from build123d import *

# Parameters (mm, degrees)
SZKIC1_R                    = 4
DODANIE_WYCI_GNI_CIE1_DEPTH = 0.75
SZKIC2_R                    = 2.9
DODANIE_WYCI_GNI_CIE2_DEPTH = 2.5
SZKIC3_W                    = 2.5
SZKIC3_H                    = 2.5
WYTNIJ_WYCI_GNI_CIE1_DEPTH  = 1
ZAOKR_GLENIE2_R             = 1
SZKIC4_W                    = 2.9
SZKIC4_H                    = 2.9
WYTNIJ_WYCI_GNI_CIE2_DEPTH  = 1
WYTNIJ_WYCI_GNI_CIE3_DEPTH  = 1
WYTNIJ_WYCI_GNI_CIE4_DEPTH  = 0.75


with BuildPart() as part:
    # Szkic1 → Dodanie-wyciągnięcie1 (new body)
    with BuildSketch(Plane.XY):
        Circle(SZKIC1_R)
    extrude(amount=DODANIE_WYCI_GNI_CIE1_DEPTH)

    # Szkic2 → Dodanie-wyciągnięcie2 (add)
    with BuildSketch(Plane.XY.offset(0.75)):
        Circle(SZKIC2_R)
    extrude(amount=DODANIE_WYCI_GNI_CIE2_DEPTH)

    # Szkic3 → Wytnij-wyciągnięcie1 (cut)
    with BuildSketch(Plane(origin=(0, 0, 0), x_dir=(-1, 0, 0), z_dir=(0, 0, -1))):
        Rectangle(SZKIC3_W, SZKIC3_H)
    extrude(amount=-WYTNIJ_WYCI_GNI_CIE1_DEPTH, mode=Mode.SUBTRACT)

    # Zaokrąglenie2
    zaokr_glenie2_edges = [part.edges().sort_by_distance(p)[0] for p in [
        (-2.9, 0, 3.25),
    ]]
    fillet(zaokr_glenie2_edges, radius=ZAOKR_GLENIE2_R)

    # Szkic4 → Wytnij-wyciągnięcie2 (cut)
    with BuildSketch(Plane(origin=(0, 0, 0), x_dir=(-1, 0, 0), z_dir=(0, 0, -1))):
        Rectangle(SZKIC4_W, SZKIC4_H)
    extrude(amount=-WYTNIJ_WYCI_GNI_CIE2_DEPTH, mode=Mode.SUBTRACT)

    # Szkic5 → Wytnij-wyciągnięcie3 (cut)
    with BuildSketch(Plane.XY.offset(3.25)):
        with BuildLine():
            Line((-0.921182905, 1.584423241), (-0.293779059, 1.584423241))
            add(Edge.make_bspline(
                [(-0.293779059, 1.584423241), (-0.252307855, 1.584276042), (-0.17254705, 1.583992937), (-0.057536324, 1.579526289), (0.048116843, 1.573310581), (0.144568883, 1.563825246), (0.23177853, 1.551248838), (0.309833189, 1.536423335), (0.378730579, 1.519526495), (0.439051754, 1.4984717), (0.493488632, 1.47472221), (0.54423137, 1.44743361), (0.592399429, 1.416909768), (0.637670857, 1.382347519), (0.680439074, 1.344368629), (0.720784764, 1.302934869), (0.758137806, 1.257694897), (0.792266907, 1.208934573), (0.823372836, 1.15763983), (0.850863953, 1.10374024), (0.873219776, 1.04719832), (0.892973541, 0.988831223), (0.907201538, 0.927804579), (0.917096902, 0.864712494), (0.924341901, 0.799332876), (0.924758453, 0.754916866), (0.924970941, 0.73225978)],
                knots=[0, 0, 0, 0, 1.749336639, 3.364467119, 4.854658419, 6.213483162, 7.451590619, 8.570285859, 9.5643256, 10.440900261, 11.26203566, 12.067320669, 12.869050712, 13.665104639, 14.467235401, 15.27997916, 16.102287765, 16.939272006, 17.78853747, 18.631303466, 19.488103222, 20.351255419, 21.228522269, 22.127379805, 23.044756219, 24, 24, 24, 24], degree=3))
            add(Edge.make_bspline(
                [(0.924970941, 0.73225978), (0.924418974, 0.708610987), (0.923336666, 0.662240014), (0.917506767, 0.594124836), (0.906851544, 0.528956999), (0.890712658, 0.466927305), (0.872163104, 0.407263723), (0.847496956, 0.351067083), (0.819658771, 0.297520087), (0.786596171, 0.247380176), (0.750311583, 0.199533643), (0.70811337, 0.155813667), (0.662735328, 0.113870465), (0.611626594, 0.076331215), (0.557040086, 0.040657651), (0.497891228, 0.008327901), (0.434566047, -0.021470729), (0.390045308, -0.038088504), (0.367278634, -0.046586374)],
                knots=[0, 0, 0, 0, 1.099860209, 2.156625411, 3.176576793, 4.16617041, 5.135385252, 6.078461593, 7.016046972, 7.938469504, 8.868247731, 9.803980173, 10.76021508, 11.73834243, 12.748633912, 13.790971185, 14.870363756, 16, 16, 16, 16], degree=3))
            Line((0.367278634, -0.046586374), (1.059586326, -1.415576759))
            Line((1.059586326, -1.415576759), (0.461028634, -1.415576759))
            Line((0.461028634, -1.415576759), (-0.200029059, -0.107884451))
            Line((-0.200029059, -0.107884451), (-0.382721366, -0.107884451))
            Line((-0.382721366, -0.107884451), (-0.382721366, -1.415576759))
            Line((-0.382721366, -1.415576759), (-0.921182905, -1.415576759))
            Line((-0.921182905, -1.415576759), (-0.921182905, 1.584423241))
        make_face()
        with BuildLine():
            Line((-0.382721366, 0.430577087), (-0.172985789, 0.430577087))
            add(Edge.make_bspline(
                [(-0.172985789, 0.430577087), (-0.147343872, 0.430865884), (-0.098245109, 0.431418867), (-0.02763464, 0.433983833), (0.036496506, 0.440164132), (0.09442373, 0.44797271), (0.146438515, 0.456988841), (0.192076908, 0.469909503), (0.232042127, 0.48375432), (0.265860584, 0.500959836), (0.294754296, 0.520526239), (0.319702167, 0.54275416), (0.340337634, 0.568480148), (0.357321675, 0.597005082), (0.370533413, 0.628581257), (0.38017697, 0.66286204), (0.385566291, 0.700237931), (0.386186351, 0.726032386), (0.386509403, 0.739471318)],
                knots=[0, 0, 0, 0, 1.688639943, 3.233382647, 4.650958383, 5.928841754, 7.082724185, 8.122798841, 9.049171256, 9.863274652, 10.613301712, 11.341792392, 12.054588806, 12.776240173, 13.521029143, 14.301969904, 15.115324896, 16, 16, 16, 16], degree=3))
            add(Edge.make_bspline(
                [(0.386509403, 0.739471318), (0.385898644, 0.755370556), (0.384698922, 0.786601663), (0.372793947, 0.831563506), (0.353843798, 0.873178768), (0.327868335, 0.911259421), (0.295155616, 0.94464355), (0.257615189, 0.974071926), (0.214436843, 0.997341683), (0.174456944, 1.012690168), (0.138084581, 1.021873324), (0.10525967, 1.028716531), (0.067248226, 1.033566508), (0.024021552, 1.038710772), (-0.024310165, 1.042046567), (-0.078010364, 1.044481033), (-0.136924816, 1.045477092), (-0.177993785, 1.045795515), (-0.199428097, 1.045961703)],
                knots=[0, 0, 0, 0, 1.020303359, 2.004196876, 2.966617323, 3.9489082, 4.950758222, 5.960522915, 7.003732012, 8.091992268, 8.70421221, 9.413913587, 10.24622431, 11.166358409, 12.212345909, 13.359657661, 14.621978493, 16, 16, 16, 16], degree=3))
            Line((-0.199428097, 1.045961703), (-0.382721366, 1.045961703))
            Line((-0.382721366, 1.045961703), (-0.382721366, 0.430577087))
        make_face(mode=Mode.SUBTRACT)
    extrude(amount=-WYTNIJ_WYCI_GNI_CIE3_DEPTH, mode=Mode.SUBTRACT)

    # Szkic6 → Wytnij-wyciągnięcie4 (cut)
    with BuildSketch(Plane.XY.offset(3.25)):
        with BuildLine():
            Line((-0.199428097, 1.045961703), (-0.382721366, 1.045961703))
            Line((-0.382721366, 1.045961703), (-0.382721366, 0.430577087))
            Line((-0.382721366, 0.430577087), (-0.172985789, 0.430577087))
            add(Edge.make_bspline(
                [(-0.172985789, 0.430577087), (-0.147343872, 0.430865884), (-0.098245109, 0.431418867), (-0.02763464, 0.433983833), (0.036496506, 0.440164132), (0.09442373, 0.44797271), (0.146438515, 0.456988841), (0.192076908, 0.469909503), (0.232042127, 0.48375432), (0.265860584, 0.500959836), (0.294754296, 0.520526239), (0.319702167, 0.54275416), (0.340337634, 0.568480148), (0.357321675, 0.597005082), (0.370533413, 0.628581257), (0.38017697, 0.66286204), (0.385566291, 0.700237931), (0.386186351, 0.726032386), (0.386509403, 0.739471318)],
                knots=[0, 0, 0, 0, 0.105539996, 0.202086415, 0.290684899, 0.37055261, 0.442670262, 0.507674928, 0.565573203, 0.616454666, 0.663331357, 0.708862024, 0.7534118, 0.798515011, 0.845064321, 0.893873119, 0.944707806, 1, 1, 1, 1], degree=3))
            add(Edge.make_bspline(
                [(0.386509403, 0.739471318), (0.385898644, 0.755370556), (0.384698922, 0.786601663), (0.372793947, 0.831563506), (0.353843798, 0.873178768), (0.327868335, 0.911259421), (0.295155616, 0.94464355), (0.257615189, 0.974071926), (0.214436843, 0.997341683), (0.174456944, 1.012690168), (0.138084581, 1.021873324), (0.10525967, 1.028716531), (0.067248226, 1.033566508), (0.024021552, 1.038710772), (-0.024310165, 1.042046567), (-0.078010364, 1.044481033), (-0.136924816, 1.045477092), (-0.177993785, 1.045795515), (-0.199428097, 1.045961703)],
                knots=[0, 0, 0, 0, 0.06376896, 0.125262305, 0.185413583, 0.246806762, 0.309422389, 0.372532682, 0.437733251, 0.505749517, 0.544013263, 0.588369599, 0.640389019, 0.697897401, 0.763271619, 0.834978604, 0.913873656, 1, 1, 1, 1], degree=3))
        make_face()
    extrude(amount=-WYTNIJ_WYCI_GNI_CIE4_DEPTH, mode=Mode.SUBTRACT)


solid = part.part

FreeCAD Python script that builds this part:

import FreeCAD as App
import Part
import Sketcher
Q = App.Units.Quantity


def edges_at(feature, points):
    """Names of the edges that pass closest to the given points."""
    edges = feature.Shape.Edges
    near = lambda p: min(range(len(edges)), key=lambda i: edges[i].distToShape(Part.Vertex(*p))[0])
    return sorted({f"Edge{near(p) + 1}" for p in points})


def add_polygon(sketch, points):
    """Adds a closed chain of lines whose ends are joined by coincident constraints."""
    first, n = sketch.GeometryCount, len(points)
    for a, b in zip(points, points[1:] + points[:1]):
        sketch.addGeometry(Part.LineSegment(App.Vector(*a, 0), App.Vector(*b, 0)), False)
    for i in range(n):
        sketch.addConstraint(Sketcher.Constraint("Coincident", first + i, 2, first + (i + 1) % n, 1))

doc = App.newDocument("Part")
body = doc.addObject("PartDesign::Body", "Body")

sketch1 = body.newObject("Sketcher::SketchObject", "Sketch")
sketch1.AttachmentSupport = (doc.getObject("XY_Plane"), [""])
sketch1.MapMode = "FlatFace"
sketch1.addGeometry(Part.Circle(App.Vector(0, 0, 0), App.Vector(0, 0, 1), 4), False)
sketch1.addConstraint([
    Sketcher.Constraint("Coincident", 0, 3, -1, 1),
    Sketcher.Constraint("Diameter", 0, Q("8 mm")),
])
pad1 = body.newObject("PartDesign::Pad", "Pad")
pad1.Profile = sketch1
pad1.Length = 0.75

sketch2 = body.newObject("Sketcher::SketchObject", "Sketch001")
sketch2.AttachmentSupport = (doc.getObject("XY_Plane"), [""])
sketch2.MapMode = "FlatFace"
sketch2.AttachmentOffset = App.Placement(App.Vector(0, 0, 0.75), App.Rotation())
sketch2.addGeometry(Part.Circle(App.Vector(0, 0, 0), App.Vector(0, 0, 1), 2.9), False)
sketch2.addConstraint([
    Sketcher.Constraint("Coincident", 0, 3, -1, 1),
    Sketcher.Constraint("Diameter", 0, Q("5.8 mm")),
])
pad2 = body.newObject("PartDesign::Pad", "Pad001")
pad2.Profile = sketch2
pad2.Length = 2.5

sketch3 = body.newObject("Sketcher::SketchObject", "Sketch002")
sketch3.AttachmentSupport = (doc.getObject("XY_Plane"), [""])
sketch3.MapMode = "FlatFace"
add_polygon(sketch3, [(1.2, 1.2), (1.2, -1.2), (-1.2, -1.2), (-1.2, 1.2)])
sketch3.addConstraint([
    Sketcher.Constraint("Vertical", 0),
    Sketcher.Constraint("Horizontal", 1),
    Sketcher.Constraint("Vertical", 2),
    Sketcher.Constraint("Horizontal", 3),
    Sketcher.Constraint("Symmetric", 0, 2, 2, 2, -1, 1),
    Sketcher.Constraint("Equal", 3, 0),
    Sketcher.Constraint("DistanceX", 1, 2, 1, 1, Q("2.5 mm")),
])
pocket1 = body.newObject("PartDesign::Pocket", "Pocket")
pocket1.Profile = sketch3
pocket1.Length = 1
pocket1.Reversed = True
doc.recompute()

fillet = body.newObject("PartDesign::Fillet", "Fillet")
fillet.Base = (pocket1, edges_at(pocket1, [(-2.9, 0, 3.25)]))
fillet.Radius = 1

sketch4 = body.newObject("Sketcher::SketchObject", "Sketch003")
sketch4.AttachmentSupport = (doc.getObject("XY_Plane"), [""])
sketch4.MapMode = "FlatFace"
add_polygon(sketch4, [(1.4, 1.4), (1.4, -1.4), (-1.4, -1.4), (-1.4, 1.4)])
sketch4.addConstraint([
    Sketcher.Constraint("Vertical", 0),
    Sketcher.Constraint("Horizontal", 1),
    Sketcher.Constraint("Vertical", 2),
    Sketcher.Constraint("Horizontal", 3),
    Sketcher.Constraint("Symmetric", 0, 2, 2, 2, -1, 1),
    Sketcher.Constraint("Equal", 3, 0),
    Sketcher.Constraint("DistanceX", 1, 2, 1, 1, Q("2.9 mm")),
])
pocket2 = body.newObject("PartDesign::Pocket", "Pocket001")
pocket2.Profile = sketch4
pocket2.Length = 1
pocket2.Reversed = True

sketch5 = body.newObject("Sketcher::SketchObject", "Sketch004")
sketch5.AttachmentSupport = (doc.getObject("XY_Plane"), [""])
sketch5.MapMode = "FlatFace"
sketch5.AttachmentOffset = App.Placement(App.Vector(0, 0, 3.25), App.Rotation())
sketch5.addGeometry([
    Part.LineSegment(App.Vector(-0.293779, 1.584423, 0), App.Vector(-0.921183, 1.584423, 0)),
    Part.LineSegment(App.Vector(-0.921183, 1.584423, 0), App.Vector(-0.921183, -1.415577, 0)),
    Part.LineSegment(App.Vector(-0.921183, -1.415577, 0), App.Vector(-0.382721, -1.415577, 0)),
    Part.LineSegment(App.Vector(-0.382721, -1.415577, 0), App.Vector(-0.382721, -0.107884, 0)),
    Part.LineSegment(App.Vector(-0.382721, -0.107884, 0), App.Vector(-0.200029, -0.107884, 0)),
    Part.LineSegment(App.Vector(-0.200029, -0.107884, 0), App.Vector(0.461029, -1.415577, 0)),
    Part.LineSegment(App.Vector(0.461029, -1.415577, 0), App.Vector(1.059586, -1.415577, 0)),
    Part.LineSegment(App.Vector(1.059586, -1.415577, 0), App.Vector(0.367279, -0.046586, 0)),
    Part.BSplineCurve([App.Vector(0.924971, 0.73226, 0), App.Vector(0.924419, 0.708611, 0), App.Vector(0.923337, 0.66224, 0), App.Vector(0.917507, 0.594125, 0), App.Vector(0.906852, 0.528957, 0), App.Vector(0.890713, 0.466927, 0), App.Vector(0.872163, 0.407264, 0), App.Vector(0.847497, 0.351067, 0), App.Vector(0.819659, 0.29752, 0), App.Vector(0.786596, 0.24738, 0), App.Vector(0.750312, 0.199534, 0), App.Vector(0.708113, 0.155814, 0), App.Vector(0.662735, 0.11387, 0), App.Vector(0.611627, 0.076331, 0), App.Vector(0.55704, 0.040658, 0), App.Vector(0.497891, 0.008328, 0), App.Vector(0.434566, -0.021471, 0), App.Vector(0.390045, -0.038089, 0), App.Vector(0.367279, -0.046586, 0)], [4, 1, 1, 1, 1, 1, 1, 1, 1, 1, 1, 1, 1, 1, 1, 1, 4], [0, 1.099860209, 2.156625411, 3.176576793, 4.16617041, 5.135385252, 6.078461593, 7.016046972, 7.938469504, 8.868247731, 9.803980173, 10.76021508, 11.73834243, 12.748633912, 13.790971185, 14.870363756, 16], False, 3, [1, 1, 1, 1, 1, 1, 1, 1, 1, 1, 1, 1, 1, 1, 1, 1, 1, 1, 1], False),
    Part.BSplineCurve([App.Vector(-0.293779, 1.584423, 0), App.Vector(-0.252308, 1.584276, 0), App.Vector(-0.172547, 1.583993, 0), App.Vector(-0.057536, 1.579526, 0), App.Vector(0.048117, 1.573311, 0), App.Vector(0.144569, 1.563825, 0), App.Vector(0.231779, 1.551249, 0), App.Vector(0.309833, 1.536423, 0), App.Vector(0.378731, 1.519526, 0), App.Vector(0.439052, 1.498472, 0), App.Vector(0.493489, 1.474722, 0), App.Vector(0.544231, 1.447434, 0), App.Vector(0.592399, 1.41691, 0), App.Vector(0.637671, 1.382348, 0), App.Vector(0.680439, 1.344369, 0), App.Vector(0.720785, 1.302935, 0), App.Vector(0.758138, 1.257695, 0), App.Vector(0.792267, 1.208935, 0), App.Vector(0.823373, 1.15764, 0), App.Vector(0.850864, 1.10374, 0), App.Vector(0.87322, 1.047198, 0), App.Vector(0.892974, 0.988831, 0), App.Vector(0.907202, 0.927805, 0), App.Vector(0.917097, 0.864712, 0), App.Vector(0.924342, 0.799333, 0), App.Vector(0.924758, 0.754917, 0), App.Vector(0.924971, 0.73226, 0)], [4, 1, 1, 1, 1, 1, 1, 1, 1, 1, 1, 1, 1, 1, 1, 1, 1, 1, 1, 1, 1, 1, 1, 1, 4], [0, 1.749336639, 3.364467119, 4.854658419, 6.213483162, 7.451590619, 8.570285859, 9.5643256, 10.440900261, 11.26203566, 12.067320669, 12.869050712, 13.665104639, 14.467235401, 15.27997916, 16.102287765, 16.939272006, 17.78853747, 18.631303466, 19.488103222, 20.351255419, 21.228522269, 22.127379805, 23.044756219, 24], False, 3, [1, 1, 1, 1, 1, 1, 1, 1, 1, 1, 1, 1, 1, 1, 1, 1, 1, 1, 1, 1, 1, 1, 1, 1, 1, 1, 1], False),
    Part.LineSegment(App.Vector(-0.382721, 0.430577, 0), App.Vector(-0.382721, 1.045962, 0)),
    Part.LineSegment(App.Vector(-0.382721, 1.045962, 0), App.Vector(-0.199428, 1.045962, 0)),
    Part.BSplineCurve([App.Vector(0.386509, 0.739471, 0), App.Vector(0.385899, 0.755371, 0), App.Vector(0.384699, 0.786602, 0), App.Vector(0.372794, 0.831564, 0), App.Vector(0.353844, 0.873179, 0), App.Vector(0.327868, 0.911259, 0), App.Vector(0.295156, 0.944644, 0), App.Vector(0.257615, 0.974072, 0), App.Vector(0.214437, 0.997342, 0), App.Vector(0.174457, 1.01269, 0), App.Vector(0.138085, 1.021873, 0), App.Vector(0.10526, 1.028717, 0), App.Vector(0.067248, 1.033567, 0), App.Vector(0.024022, 1.038711, 0), App.Vector(-0.02431, 1.042047, 0), App.Vector(-0.07801, 1.044481, 0), App.Vector(-0.136925, 1.045477, 0), App.Vector(-0.177994, 1.045796, 0), App.Vector(-0.199428, 1.045962, 0)], [4, 1, 1, 1, 1, 1, 1, 1, 1, 1, 1, 1, 1, 1, 1, 1, 4], [0, 1.020303359, 2.004196876, 2.966617323, 3.9489082, 4.950758222, 5.960522915, 7.003732012, 8.091992268, 8.70421221, 9.413913587, 10.24622431, 11.166358409, 12.212345909, 13.359657661, 14.621978493, 16], False, 3, [1, 1, 1, 1, 1, 1, 1, 1, 1, 1, 1, 1, 1, 1, 1, 1, 1, 1, 1], False),
    Part.BSplineCurve([App.Vector(-0.172986, 0.430577, 0), App.Vector(-0.147344, 0.430866, 0), App.Vector(-0.098245, 0.431419, 0), App.Vector(-0.027635, 0.433984, 0), App.Vector(0.036497, 0.440164, 0), App.Vector(0.094424, 0.447973, 0), App.Vector(0.146439, 0.456989, 0), App.Vector(0.192077, 0.46991, 0), App.Vector(0.232042, 0.483754, 0), App.Vector(0.265861, 0.50096, 0), App.Vector(0.294754, 0.520526, 0), App.Vector(0.319702, 0.542754, 0), App.Vector(0.340338, 0.56848, 0), App.Vector(0.357322, 0.597005, 0), App.Vector(0.370533, 0.628581, 0), App.Vector(0.380177, 0.662862, 0), App.Vector(0.385566, 0.700238, 0), App.Vector(0.386186, 0.726032, 0), App.Vector(0.386509, 0.739471, 0)], [4, 1, 1, 1, 1, 1, 1, 1, 1, 1, 1, 1, 1, 1, 1, 1, 4], [0, 1.688639943, 3.233382647, 4.650958383, 5.928841754, 7.082724185, 8.122798841, 9.049171256, 9.863274652, 10.613301712, 11.341792392, 12.054588806, 12.776240173, 13.521029143, 14.301969904, 15.115324896, 16], False, 3, [1, 1, 1, 1, 1, 1, 1, 1, 1, 1, 1, 1, 1, 1, 1, 1, 1, 1, 1], False),
    Part.LineSegment(App.Vector(-0.172986, 0.430577, 0), App.Vector(-0.382721, 0.430577, 0)),
], False)
sketch5.addConstraint([
    Sketcher.Constraint("Block", 8),
    Sketcher.Constraint("Block", 9),
    Sketcher.Constraint("Block", 12),
    Sketcher.Constraint("Block", 13),
    Sketcher.Constraint("Coincident", 0, 2, 1, 1),
    Sketcher.Constraint("Coincident", 1, 2, 2, 1),
    Sketcher.Constraint("Coincident", 2, 2, 3, 1),
    Sketcher.Constraint("Coincident", 3, 2, 4, 1),
    Sketcher.Constraint("Coincident", 4, 2, 5, 1),
    Sketcher.Constraint("Coincident", 5, 2, 6, 1),
    Sketcher.Constraint("Coincident", 6, 2, 7, 1),
    Sketcher.Constraint("Coincident", 7, 2, 8, 2),
    Sketcher.Constraint("Coincident", 9, 1, 0, 1),
    Sketcher.Constraint("Coincident", 10, 2, 11, 1),
    Sketcher.Constraint("Coincident", 11, 2, 12, 2),
    Sketcher.Constraint("Coincident", 13, 1, 14, 1),
    Sketcher.Constraint("Coincident", 14, 2, 10, 1),
    Sketcher.Constraint("Horizontal", 0),
    Sketcher.Constraint("Vertical", 1),
    Sketcher.Constraint("Horizontal", 2),
    Sketcher.Constraint("Vertical", 3),
    Sketcher.Constraint("Horizontal", 4),
    Sketcher.Constraint("Horizontal", 6),
    Sketcher.Constraint("Vertical", 10),
    Sketcher.Constraint("Horizontal", 11),
    Sketcher.Constraint("Horizontal", 14),
    Sketcher.Constraint("Horizontal", 2, 2, 5, 2),
    Sketcher.Constraint("Vertical", 3, 2, 10, 2),
    Sketcher.Constraint("DistanceY", 1, 2, 1, 1, Q("3 mm")),
    Sketcher.Constraint("DistanceX", 3, 2, 7, 2, Q("0.75 mm")),
    Sketcher.Constraint("DistanceX", 2, 1, 2, 2, Q("0.538462 mm")),
    Sketcher.Constraint("DistanceY", 4, 2, 7, 2, Q("0.061298 mm")),
    Sketcher.Constraint("DistanceX", 4, 2, 11, 2, Q("0.000601 mm")),
    Sketcher.Constraint("DistanceX", 6, 1, 6, 2, Q("0.598558 mm")),
    Sketcher.Constraint("DistanceX", -1, 1, 5, 2, Q("0.461029 mm")),
])
pocket3 = body.newObject("PartDesign::Pocket", "Pocket002")
pocket3.Profile = sketch5
pocket3.Length = 1

sketch6 = body.newObject("Sketcher::SketchObject", "Sketch005")
sketch6.AttachmentSupport = (doc.getObject("XY_Plane"), [""])
sketch6.MapMode = "FlatFace"
sketch6.AttachmentOffset = App.Placement(App.Vector(0, 0, 3.25), App.Rotation())
sketch6.addGeometry([
    Part.LineSegment(App.Vector(-0.199428, 1.045962, 0), App.Vector(-0.382721, 1.045962, 0)),
    Part.LineSegment(App.Vector(-0.382721, 1.045962, 0), App.Vector(-0.382721, 0.430577, 0)),
    Part.LineSegment(App.Vector(-0.382721, 0.430577, 0), App.Vector(-0.172986, 0.430577, 0)),
    Part.BSplineCurve([App.Vector(-0.172986, 0.430577, 0), App.Vector(-0.147344, 0.430866, 0), App.Vector(-0.098245, 0.431419, 0), App.Vector(-0.027635, 0.433984, 0), App.Vector(0.036497, 0.440164, 0), App.Vector(0.094424, 0.447973, 0), App.Vector(0.146439, 0.456989, 0), App.Vector(0.192077, 0.46991, 0), App.Vector(0.232042, 0.483754, 0), App.Vector(0.265861, 0.50096, 0), App.Vector(0.294754, 0.520526, 0), App.Vector(0.319702, 0.542754, 0), App.Vector(0.340338, 0.56848, 0), App.Vector(0.357322, 0.597005, 0), App.Vector(0.370533, 0.628581, 0), App.Vector(0.380177, 0.662862, 0), App.Vector(0.385566, 0.700238, 0), App.Vector(0.386186, 0.726032, 0), App.Vector(0.386509, 0.739471, 0)], [4, 1, 1, 1, 1, 1, 1, 1, 1, 1, 1, 1, 1, 1, 1, 1, 4], [0, 0.105539996, 0.202086415, 0.290684899, 0.37055261, 0.442670262, 0.507674928, 0.565573203, 0.616454666, 0.663331357, 0.708862024, 0.7534118, 0.798515011, 0.845064321, 0.893873119, 0.944707806, 1], False, 3, [1, 1, 1, 1, 1, 1, 1, 1, 1, 1, 1, 1, 1, 1, 1, 1, 1, 1, 1], False),
    Part.BSplineCurve([App.Vector(0.386509, 0.739471, 0), App.Vector(0.385899, 0.755371, 0), App.Vector(0.384699, 0.786602, 0), App.Vector(0.372794, 0.831564, 0), App.Vector(0.353844, 0.873179, 0), App.Vector(0.327868, 0.911259, 0), App.Vector(0.295156, 0.944644, 0), App.Vector(0.257615, 0.974072, 0), App.Vector(0.214437, 0.997342, 0), App.Vector(0.174457, 1.01269, 0), App.Vector(0.138085, 1.021873, 0), App.Vector(0.10526, 1.028717, 0), App.Vector(0.067248, 1.033567, 0), App.Vector(0.024022, 1.038711, 0), App.Vector(-0.02431, 1.042047, 0), App.Vector(-0.07801, 1.044481, 0), App.Vector(-0.136925, 1.045477, 0), App.Vector(-0.177994, 1.045796, 0), App.Vector(-0.199428, 1.045962, 0)], [4, 1, 1, 1, 1, 1, 1, 1, 1, 1, 1, 1, 1, 1, 1, 1, 4], [0, 0.06376896, 0.125262305, 0.185413583, 0.246806762, 0.309422389, 0.372532682, 0.437733251, 0.505749517, 0.544013263, 0.588369599, 0.640389019, 0.697897401, 0.763271619, 0.834978604, 0.913873656, 1], False, 3, [1, 1, 1, 1, 1, 1, 1, 1, 1, 1, 1, 1, 1, 1, 1, 1, 1, 1, 1], False),
], False)
sketch6.addConstraint([
    Sketcher.Constraint("Block", 3),
    Sketcher.Constraint("Block", 4),
    Sketcher.Constraint("Coincident", 0, 2, 1, 1),
    Sketcher.Constraint("Coincident", 1, 2, 2, 1),
    Sketcher.Constraint("Coincident", 2, 2, 3, 1),
    Sketcher.Constraint("Coincident", 4, 2, 0, 1),
    Sketcher.Constraint("Horizontal", 0),
    Sketcher.Constraint("Vertical", 1),
    Sketcher.Constraint("Horizontal", 2),
    Sketcher.Constraint("DistanceX", 0, 2, 0, 1, Q("0.183293 mm")),
])
pocket4 = body.newObject("PartDesign::Pocket", "Pocket003")
pocket4.Profile = sketch6
pocket4.Length = 0.75

doc.recompute()
